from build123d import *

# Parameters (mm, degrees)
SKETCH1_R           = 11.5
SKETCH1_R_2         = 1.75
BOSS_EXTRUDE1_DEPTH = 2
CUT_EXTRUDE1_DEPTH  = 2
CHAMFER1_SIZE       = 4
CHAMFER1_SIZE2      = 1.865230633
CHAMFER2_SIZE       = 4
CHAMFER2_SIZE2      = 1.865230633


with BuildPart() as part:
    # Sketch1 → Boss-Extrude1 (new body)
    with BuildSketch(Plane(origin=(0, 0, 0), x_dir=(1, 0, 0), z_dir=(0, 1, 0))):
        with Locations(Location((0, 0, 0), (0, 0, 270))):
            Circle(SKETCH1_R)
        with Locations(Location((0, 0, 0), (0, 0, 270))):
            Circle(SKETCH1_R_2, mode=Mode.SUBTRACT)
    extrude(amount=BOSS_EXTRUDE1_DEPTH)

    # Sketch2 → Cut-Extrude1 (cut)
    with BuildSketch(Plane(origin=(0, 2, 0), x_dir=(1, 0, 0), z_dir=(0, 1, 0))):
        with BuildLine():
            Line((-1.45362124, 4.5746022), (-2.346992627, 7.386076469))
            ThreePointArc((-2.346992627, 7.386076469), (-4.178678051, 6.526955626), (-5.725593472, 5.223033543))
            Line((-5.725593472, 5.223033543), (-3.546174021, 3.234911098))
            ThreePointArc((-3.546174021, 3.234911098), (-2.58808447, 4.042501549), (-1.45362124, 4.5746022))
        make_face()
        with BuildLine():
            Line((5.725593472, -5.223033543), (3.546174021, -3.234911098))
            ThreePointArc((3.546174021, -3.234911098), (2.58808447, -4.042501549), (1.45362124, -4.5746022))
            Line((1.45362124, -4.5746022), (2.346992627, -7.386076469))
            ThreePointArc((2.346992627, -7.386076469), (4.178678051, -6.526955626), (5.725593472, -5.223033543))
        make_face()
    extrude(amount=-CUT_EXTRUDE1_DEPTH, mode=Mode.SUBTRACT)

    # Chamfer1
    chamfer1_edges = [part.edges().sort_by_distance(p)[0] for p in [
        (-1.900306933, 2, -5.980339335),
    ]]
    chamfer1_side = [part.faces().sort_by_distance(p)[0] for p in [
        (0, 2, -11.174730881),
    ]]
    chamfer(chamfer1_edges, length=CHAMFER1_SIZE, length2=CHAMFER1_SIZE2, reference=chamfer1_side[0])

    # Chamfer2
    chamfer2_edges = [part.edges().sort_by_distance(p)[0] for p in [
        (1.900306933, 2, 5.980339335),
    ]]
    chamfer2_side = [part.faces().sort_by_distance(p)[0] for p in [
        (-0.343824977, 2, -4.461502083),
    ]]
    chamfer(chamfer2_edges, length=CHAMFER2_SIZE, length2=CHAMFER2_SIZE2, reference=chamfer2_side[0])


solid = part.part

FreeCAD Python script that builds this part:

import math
import FreeCAD as App
import Part
import Sketcher


def edges_at(feature, points):
    """Names of the edges that pass closest to the given points."""
    edges = feature.Shape.Edges
    near = lambda p: min(range(len(edges)), key=lambda i: edges[i].distToShape(Part.Vertex(*p))[0])
    return sorted({f"Edge{near(p) + 1}" for p in points})

doc = App.newDocument("Part")
body = doc.addObject("PartDesign::Body", "Body")

# Sketch on XZ plane
sketch1 = doc.addObject("Sketcher::SketchObject", "Sketch")
body.addObject(sketch1)
sketch1.AttachmentSupport = (doc.XZ_Plane, [""])
sketch1.MapMode = "FlatFace"
sketch1.addGeometry(Part.Circle(App.Vector(0, 0, 0), App.Vector(0, 0, 1), 11.5), False)
sketch1.addGeometry(Part.Circle(App.Vector(0, 0, 0), App.Vector(0, 0, 1), 1.8), False)
sketch1.addConstraint(Sketcher.Constraint("Coincident", 0, 3, -1, 1))
sketch1.addConstraint(Sketcher.Constraint("Coincident", 1, 3, -1, 1))
sketch1.addConstraint(Sketcher.Constraint("Diameter", 0, 23.0))
sketch1.addConstraint(Sketcher.Constraint("Diameter", 1, 3.5))
pad1 = doc.addObject("PartDesign::Pad", "Pad")
body.addObject(pad1)
pad1.Profile = sketch1
pad1.Length = 2
pad1.Reversed = True

# Sketch on XZ plane
sketch2 = doc.addObject("Sketcher::SketchObject", "Sketch001")
body.addObject(sketch2)
sketch2.AttachmentSupport = (doc.XZ_Plane, [""])
sketch2.MapMode = "FlatFace"
sketch2.AttachmentOffset = App.Placement(App.Vector(0, 0, -2), App.Rotation())
sketch2.addGeometry(Part.LineSegment(App.Vector(-1.5, -4.6, 0), App.Vector(-2.3, -7.4, 0)), False)
sketch2.addGeometry(Part.ArcOfCircle(Part.Circle(App.Vector(0, 0, 0), App.Vector(0, 0, 1), 7.8), math.radians(-138), math.radians(-108)), False)
sketch2.addGeometry(Part.LineSegment(App.Vector(-5.7, -5.2, 0), App.Vector(-3.5, -3.2, 0)), False)
sketch2.addGeometry(Part.ArcOfCircle(Part.Circle(App.Vector(0, 0, 0), App.Vector(0, 0, 1), 4.8), math.radians(-138), math.radians(-108)), False)
sketch2.addGeometry(Part.LineSegment(App.Vector(5.7, 5.2, 0), App.Vector(3.5, 3.2, 0)), False)
sketch2.addGeometry(Part.ArcOfCircle(Part.Circle(App.Vector(0, 0, 0), App.Vector(0, 0, 1), 4.8), math.radians(42), math.radians(72)), False)
sketch2.addGeometry(Part.LineSegment(App.Vector(1.5, 4.6, 0), App.Vector(2.3, 7.4, 0)), False)
sketch2.addGeometry(Part.ArcOfCircle(Part.Circle(App.Vector(0, 0, 0), App.Vector(0, 0, 1), 7.8), math.radians(42), math.radians(72)), False)
sketch2.addConstraint(Sketcher.Constraint("Coincident", 0, 2, 1, 2))
sketch2.addConstraint(Sketcher.Constraint("Coincident", 1, 1, 2, 1))
sketch2.addConstraint(Sketcher.Constraint("Coincident", 2, 2, 3, 1))
sketch2.addConstraint(Sketcher.Constraint("Coincident", 3, 2, 0, 1))
sketch2.addConstraint(Sketcher.Constraint("Coincident", 4, 2, 5, 1))
sketch2.addConstraint(Sketcher.Constraint("Coincident", 5, 2, 6, 1))
sketch2.addConstraint(Sketcher.Constraint("Coincident", 6, 2, 7, 2))
sketch2.addConstraint(Sketcher.Constraint("Coincident", 7, 1, 4, 1))
sketch2.addConstraint(Sketcher.Constraint("Coincident", 1, 3, -1, 1))
sketch2.addConstraint(Sketcher.Constraint("Coincident", 3, 3, -1, 1))
sketch2.addConstraint(Sketcher.Constraint("Coincident", 5, 3, -1, 1))
sketch2.addConstraint(Sketcher.Constraint("Coincident", 7, 3, -1, 1))
sketch2.addConstraint(Sketcher.Constraint("Equal", 3, 5))
sketch2.addConstraint(Sketcher.Constraint("Equal", 1, 7))
sketch2.addConstraint(Sketcher.Constraint("Parallel", 2, 4))
sketch2.addConstraint(Sketcher.Constraint("Parallel", 0, 6))
sketch2.addConstraint(Sketcher.Constraint("Radius", 3, 4.8))
sketch2.addConstraint(Sketcher.Constraint("Radius", 1, 7.75))
sketch2.addConstraint(Sketcher.Constraint("DistanceX", 1, 1, 0, 2, 3.378601))
sketch2.addConstraint(Sketcher.Constraint("DistanceX", 6, 2, 7, 1, 3.378601))
sketch2.addConstraint(Sketcher.Constraint("DistanceY", 2, 2, -1, 1, 3.234911))
sketch2.addConstraint(Sketcher.Constraint("DistanceX", 3, 2, -1, 1, 1.453621))
sketch2.addConstraint(Sketcher.Constraint("DistanceY", -1, 1, 4, 2, 3.234911))
sketch2.addConstraint(Sketcher.Constraint("DistanceX", 1, 1, 2, 2, 2.179419))
pocket1 = doc.addObject("PartDesign::Pocket", "Pocket")
body.addObject(pocket1)
pocket1.Profile = sketch2
pocket1.Length = 2
pocket1.Reversed = True
doc.recompute()

chamfer = doc.addObject("PartDesign::Chamfer", "Chamfer")
body.addObject(chamfer)
chamfer.Base = (pocket1, edges_at(pocket1, [(-1.9, 2, -5.98)]))
chamfer.ChamferType = "Two distances"
chamfer.Size = 4
chamfer.Size2 = 1.865231
doc.recompute()

chamfer2 = doc.addObject("PartDesign::Chamfer", "Chamfer001")
body.addObject(chamfer2)
chamfer2.Base = (chamfer, edges_at(chamfer, [(1.9, 2, 5.98)]))
chamfer2.ChamferType = "Two distances"
chamfer2.Size = 4
chamfer2.Size2 = 1.865231

doc.recompute()
